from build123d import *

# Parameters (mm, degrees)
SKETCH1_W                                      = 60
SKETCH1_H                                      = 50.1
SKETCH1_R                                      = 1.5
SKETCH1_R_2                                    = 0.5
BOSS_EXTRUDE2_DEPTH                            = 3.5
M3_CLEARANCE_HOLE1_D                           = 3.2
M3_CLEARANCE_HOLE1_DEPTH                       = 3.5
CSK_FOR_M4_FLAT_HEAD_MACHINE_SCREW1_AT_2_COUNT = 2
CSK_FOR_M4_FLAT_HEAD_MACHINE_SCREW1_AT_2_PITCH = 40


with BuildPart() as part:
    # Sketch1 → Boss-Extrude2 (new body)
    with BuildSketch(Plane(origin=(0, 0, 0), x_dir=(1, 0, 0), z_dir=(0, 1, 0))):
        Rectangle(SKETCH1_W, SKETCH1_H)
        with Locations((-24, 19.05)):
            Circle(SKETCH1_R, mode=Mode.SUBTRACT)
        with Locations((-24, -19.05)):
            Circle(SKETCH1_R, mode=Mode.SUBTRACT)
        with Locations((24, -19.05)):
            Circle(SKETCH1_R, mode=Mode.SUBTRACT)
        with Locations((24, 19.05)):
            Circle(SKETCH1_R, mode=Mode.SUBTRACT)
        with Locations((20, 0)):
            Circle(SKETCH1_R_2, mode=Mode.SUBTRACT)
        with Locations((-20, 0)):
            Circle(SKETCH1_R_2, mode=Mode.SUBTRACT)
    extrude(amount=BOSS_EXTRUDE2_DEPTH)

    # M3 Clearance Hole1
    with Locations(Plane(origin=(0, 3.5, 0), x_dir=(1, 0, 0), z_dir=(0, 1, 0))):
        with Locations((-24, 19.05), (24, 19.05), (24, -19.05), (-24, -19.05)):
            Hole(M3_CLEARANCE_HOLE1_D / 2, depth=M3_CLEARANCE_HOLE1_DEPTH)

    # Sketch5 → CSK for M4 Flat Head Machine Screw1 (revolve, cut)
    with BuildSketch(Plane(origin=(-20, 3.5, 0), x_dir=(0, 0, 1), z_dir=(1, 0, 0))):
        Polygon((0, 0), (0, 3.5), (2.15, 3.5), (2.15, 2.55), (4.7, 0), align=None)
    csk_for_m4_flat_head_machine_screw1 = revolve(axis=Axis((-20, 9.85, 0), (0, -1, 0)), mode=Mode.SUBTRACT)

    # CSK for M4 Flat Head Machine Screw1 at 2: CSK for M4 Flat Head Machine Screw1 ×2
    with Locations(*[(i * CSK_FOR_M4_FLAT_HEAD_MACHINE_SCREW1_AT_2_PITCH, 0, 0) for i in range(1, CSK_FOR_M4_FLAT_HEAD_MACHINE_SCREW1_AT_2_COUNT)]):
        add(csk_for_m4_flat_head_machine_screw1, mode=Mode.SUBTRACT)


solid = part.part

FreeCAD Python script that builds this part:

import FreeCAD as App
import Part
import Sketcher
Q = App.Units.Quantity

doc = App.newDocument("Part")
params = doc.addObject("Spreadsheet::Sheet", "Params")
for row, (alias, value) in enumerate([
    ("sketch1_diameter", "3 mm"),
    ("sketch1_diameter2", "1 mm"),
    ("sketch1_width", "60 mm"),
    ("sketch1_height", "50.1 mm"),
    ("pad1_length", "3.5 mm"),
    ("sketch2_diameter", "3.2 mm"),
    ("hole_diameter", "3.2 mm"),
    ("hole_depth", "3.5 mm"),
    ("sketch3_width", "3.5 mm"),
    ("sketch3_height", "4.7 mm"),
    ("sketch3_width2", "0.95 mm"),
    ("groove_angle", "360 deg"),
    ("linearpattern_pitch", "40 mm"),
], start=1):
    params.set(f"A{row}", alias)
    params.set(f"B{row}", "=" + value)
    params.setAlias(f"B{row}", alias)

body = doc.addObject("PartDesign::Body", "Body")

# Sketch on XZ plane
sketch1 = body.newObject("Sketcher::SketchObject", "Sketch")
sketch1.AttachmentSupport = (doc.getObject("XZ_Plane"), [""])
sketch1.MapMode = "FlatFace"
sketch1.addGeometry([
    Part.LineSegment(App.Vector(-30, -25.1, 0), App.Vector(-30, 25.1, 0)),  # 0
    Part.LineSegment(App.Vector(-30, 25.1, 0), App.Vector(30, 25.1, 0)),  # 1
    Part.LineSegment(App.Vector(30, 25.1, 0), App.Vector(30, -25.1, 0)),  # 2
    Part.LineSegment(App.Vector(30, -25.1, 0), App.Vector(-30, -25.1, 0)),  # 3
    Part.Circle(App.Vector(-24, 19.1, 0), App.Vector(0, 0, 1), 1.5),  # 4
    Part.Circle(App.Vector(24, 19.1, 0), App.Vector(0, 0, 1), 1.5),  # 5
    Part.Circle(App.Vector(-20, 0, 0), App.Vector(0, 0, 1), 0.5),  # 6
    Part.Circle(App.Vector(-24, -19.1, 0), App.Vector(0, 0, 1), 1.5),  # 7
    Part.Circle(App.Vector(20, 0, 0), App.Vector(0, 0, 1), 0.5),  # 8
    Part.Circle(App.Vector(24, -19.1, 0), App.Vector(0, 0, 1), 1.5),  # 9
], False)
sketch1.addConstraint([
    Sketcher.Constraint("Coincident", 0, 2, 1, 1),
    Sketcher.Constraint("Coincident", 1, 2, 2, 1),
    Sketcher.Constraint("Coincident", 2, 2, 3, 1),
    Sketcher.Constraint("Coincident", 3, 2, 0, 1),
    Sketcher.Constraint("Vertical", 0),
    Sketcher.Constraint("Horizontal", 1),
    Sketcher.Constraint("Vertical", 2),
    Sketcher.Constraint("Horizontal", 3),
    Sketcher.Constraint("Equal", 4, 5),
    Sketcher.Constraint("Equal", 5, 7),
    Sketcher.Constraint("Equal", 6, 8),
    Sketcher.Constraint("Equal", 7, 9),
    Sketcher.Constraint("Symmetric", 5, 3, 7, 3, -1, 1),
    Sketcher.Constraint("Symmetric", 6, 3, 8, 3, -1, 1),
    Sketcher.Constraint("Symmetric", 4, 3, 9, 3, -1, 1),
    Sketcher.Constraint("Symmetric", 0, 2, 2, 2, -1, 1),
    Sketcher.Constraint("Symmetric", 4, 3, 5, 3, -2),
    Sketcher.Constraint("PointOnObject", 6, 3, -1),
    Sketcher.Constraint("Diameter", 4, 3.0),
    Sketcher.Constraint("Diameter", 6, 1.0),
    Sketcher.Constraint("DistanceX", 1, 1, 1, 2, 60.0),
    Sketcher.Constraint("DistanceY", 0, 1, 0, 2, 50.1),
    Sketcher.Constraint("DistanceX", 4, 3, -1, 1, 24.0),
    Sketcher.Constraint("DistanceX", 6, 3, -1, 1, 20.0),
    Sketcher.Constraint("DistanceY", 4, 3, 0, 2, 6.0),
])
sketch1.setExpression("Constraints[18]", "Params.sketch1_diameter")
sketch1.setExpression("Constraints[19]", "Params.sketch1_diameter2")
sketch1.setExpression("Constraints[20]", "Params.sketch1_width")
sketch1.setExpression("Constraints[21]", "Params.sketch1_height")
pad1 = body.newObject("PartDesign::Pad", "Pad")
pad1.Profile = sketch1
pad1.setExpression("Length", "Params.pad1_length")
pad1.Reversed = True

# Sketch on XZ plane
sketch2 = body.newObject("Sketcher::SketchObject", "Sketch001")
sketch2.AttachmentSupport = (doc.getObject("XZ_Plane"), [""])
sketch2.MapMode = "FlatFace"
sketch2.AttachmentOffset = App.Placement(App.Vector(0, 0, -3.5), App.Rotation())
sketch2.addGeometry([
    Part.Circle(App.Vector(-24, -19.1, 0), App.Vector(0, 0, 1), 1.6),
    Part.Circle(App.Vector(24, -19.1, 0), App.Vector(0, 0, 1), 1.6),
    Part.Circle(App.Vector(24, 19.1, 0), App.Vector(0, 0, 1), 1.6),
    Part.Circle(App.Vector(-24, 19.1, 0), App.Vector(0, 0, 1), 1.6),
], False)
sketch2.addConstraint([
    Sketcher.Constraint("Equal", 0, 1),
    Sketcher.Constraint("Equal", 1, 2),
    Sketcher.Constraint("Equal", 2, 3),
    Sketcher.Constraint("Symmetric", 0, 3, 2, 3, -1, 1),
    Sketcher.Constraint("Symmetric", 1, 3, 3, 3, -1, 1),
    Sketcher.Constraint("Symmetric", 0, 3, 1, 3, -2),
    Sketcher.Constraint("Diameter", 0, 3.2),
    Sketcher.Constraint("DistanceX", 0, 3, -1, 1, 24.0),
    Sketcher.Constraint("DistanceY", 1, 3, 2, 3, 38.1),
])
sketch2.setExpression("Constraints[6]", "Params.sketch2_diameter")
doc.recompute()
hole = body.newObject("PartDesign::Hole", "Hole")
hole.Profile = sketch2
hole.ThreadType = "None"
hole.setExpression("Diameter", "Params.hole_diameter")
hole.DepthType = "Dimension"
hole.setExpression("Depth", "Params.hole_depth")
hole.DrillPoint = "Flat"
hole.Reversed = True

# Sketch on YZ plane
sketch3 = body.newObject("Sketcher::SketchObject", "Sketch002")
sketch3.AttachmentSupport = (doc.getObject("YZ_Plane"), [""])
sketch3.MapMode = "FlatFace"
sketch3.AttachmentOffset = App.Placement(App.Vector(0, 0, -20), App.Rotation())
sketch3.addGeometry([
    Part.LineSegment(App.Vector(0, 0, 0), App.Vector(3.5, 0, 0)),  # 0
    Part.LineSegment(App.Vector(3.5, 0, 0), App.Vector(3.5, 4.7, 0)),  # 1
    Part.LineSegment(App.Vector(3.5, 4.7, 0), App.Vector(0.9, 2.1, 0)),  # 2
    Part.LineSegment(App.Vector(0.9, 2.1, 0), App.Vector(0, 2.1, 0)),  # 3
    Part.LineSegment(App.Vector(0, 2.1, 0), App.Vector(0, 0, 0)),  # 4
], False)
sketch3.addConstraint([
    Sketcher.Constraint("Coincident", 0, 2, 1, 1),
    Sketcher.Constraint("Coincident", 1, 2, 2, 1),
    Sketcher.Constraint("Coincident", 2, 2, 3, 1),
    Sketcher.Constraint("Coincident", 3, 2, 4, 1),
    Sketcher.Constraint("Coincident", 4, 2, 0, 1),
    Sketcher.Constraint("Horizontal", 0),
    Sketcher.Constraint("Vertical", 1),
    Sketcher.Constraint("Horizontal", 3),
    Sketcher.Constraint("Vertical", 4),
    Sketcher.Constraint("Coincident", 4, 2, -1, 1),
    Sketcher.Constraint("Angle", 2, Q("-135 deg")),
    Sketcher.Constraint("DistanceX", 0, 1, 0, 2, 3.5),
    Sketcher.Constraint("DistanceY", 1, 1, 1, 2, 4.7),
    Sketcher.Constraint("DistanceX", 3, 2, 3, 1, 0.95),
])
sketch3.setExpression("Constraints[11]", "Params.sketch3_width")
sketch3.setExpression("Constraints[12]", "Params.sketch3_height")
sketch3.setExpression("Constraints[13]", "Params.sketch3_width2")
groove = body.newObject("PartDesign::Groove", "Groove")
groove.Profile = sketch3
groove.ReferenceAxis = (sketch3, ["H_Axis"])
groove.setExpression("Angle", "Params.groove_angle")
doc.recompute()

linearpattern = body.newObject("PartDesign::LinearPattern", "LinearPattern")
linearpattern.Originals = [groove]
linearpattern.Direction = (doc.getObject("X_Axis"), [""])
linearpattern.Mode = "offset"
linearpattern.setExpression("Offset", "Params.linearpattern_pitch")
linearpattern.Occurrences = 2
body.Tip = linearpattern

doc.recompute()
